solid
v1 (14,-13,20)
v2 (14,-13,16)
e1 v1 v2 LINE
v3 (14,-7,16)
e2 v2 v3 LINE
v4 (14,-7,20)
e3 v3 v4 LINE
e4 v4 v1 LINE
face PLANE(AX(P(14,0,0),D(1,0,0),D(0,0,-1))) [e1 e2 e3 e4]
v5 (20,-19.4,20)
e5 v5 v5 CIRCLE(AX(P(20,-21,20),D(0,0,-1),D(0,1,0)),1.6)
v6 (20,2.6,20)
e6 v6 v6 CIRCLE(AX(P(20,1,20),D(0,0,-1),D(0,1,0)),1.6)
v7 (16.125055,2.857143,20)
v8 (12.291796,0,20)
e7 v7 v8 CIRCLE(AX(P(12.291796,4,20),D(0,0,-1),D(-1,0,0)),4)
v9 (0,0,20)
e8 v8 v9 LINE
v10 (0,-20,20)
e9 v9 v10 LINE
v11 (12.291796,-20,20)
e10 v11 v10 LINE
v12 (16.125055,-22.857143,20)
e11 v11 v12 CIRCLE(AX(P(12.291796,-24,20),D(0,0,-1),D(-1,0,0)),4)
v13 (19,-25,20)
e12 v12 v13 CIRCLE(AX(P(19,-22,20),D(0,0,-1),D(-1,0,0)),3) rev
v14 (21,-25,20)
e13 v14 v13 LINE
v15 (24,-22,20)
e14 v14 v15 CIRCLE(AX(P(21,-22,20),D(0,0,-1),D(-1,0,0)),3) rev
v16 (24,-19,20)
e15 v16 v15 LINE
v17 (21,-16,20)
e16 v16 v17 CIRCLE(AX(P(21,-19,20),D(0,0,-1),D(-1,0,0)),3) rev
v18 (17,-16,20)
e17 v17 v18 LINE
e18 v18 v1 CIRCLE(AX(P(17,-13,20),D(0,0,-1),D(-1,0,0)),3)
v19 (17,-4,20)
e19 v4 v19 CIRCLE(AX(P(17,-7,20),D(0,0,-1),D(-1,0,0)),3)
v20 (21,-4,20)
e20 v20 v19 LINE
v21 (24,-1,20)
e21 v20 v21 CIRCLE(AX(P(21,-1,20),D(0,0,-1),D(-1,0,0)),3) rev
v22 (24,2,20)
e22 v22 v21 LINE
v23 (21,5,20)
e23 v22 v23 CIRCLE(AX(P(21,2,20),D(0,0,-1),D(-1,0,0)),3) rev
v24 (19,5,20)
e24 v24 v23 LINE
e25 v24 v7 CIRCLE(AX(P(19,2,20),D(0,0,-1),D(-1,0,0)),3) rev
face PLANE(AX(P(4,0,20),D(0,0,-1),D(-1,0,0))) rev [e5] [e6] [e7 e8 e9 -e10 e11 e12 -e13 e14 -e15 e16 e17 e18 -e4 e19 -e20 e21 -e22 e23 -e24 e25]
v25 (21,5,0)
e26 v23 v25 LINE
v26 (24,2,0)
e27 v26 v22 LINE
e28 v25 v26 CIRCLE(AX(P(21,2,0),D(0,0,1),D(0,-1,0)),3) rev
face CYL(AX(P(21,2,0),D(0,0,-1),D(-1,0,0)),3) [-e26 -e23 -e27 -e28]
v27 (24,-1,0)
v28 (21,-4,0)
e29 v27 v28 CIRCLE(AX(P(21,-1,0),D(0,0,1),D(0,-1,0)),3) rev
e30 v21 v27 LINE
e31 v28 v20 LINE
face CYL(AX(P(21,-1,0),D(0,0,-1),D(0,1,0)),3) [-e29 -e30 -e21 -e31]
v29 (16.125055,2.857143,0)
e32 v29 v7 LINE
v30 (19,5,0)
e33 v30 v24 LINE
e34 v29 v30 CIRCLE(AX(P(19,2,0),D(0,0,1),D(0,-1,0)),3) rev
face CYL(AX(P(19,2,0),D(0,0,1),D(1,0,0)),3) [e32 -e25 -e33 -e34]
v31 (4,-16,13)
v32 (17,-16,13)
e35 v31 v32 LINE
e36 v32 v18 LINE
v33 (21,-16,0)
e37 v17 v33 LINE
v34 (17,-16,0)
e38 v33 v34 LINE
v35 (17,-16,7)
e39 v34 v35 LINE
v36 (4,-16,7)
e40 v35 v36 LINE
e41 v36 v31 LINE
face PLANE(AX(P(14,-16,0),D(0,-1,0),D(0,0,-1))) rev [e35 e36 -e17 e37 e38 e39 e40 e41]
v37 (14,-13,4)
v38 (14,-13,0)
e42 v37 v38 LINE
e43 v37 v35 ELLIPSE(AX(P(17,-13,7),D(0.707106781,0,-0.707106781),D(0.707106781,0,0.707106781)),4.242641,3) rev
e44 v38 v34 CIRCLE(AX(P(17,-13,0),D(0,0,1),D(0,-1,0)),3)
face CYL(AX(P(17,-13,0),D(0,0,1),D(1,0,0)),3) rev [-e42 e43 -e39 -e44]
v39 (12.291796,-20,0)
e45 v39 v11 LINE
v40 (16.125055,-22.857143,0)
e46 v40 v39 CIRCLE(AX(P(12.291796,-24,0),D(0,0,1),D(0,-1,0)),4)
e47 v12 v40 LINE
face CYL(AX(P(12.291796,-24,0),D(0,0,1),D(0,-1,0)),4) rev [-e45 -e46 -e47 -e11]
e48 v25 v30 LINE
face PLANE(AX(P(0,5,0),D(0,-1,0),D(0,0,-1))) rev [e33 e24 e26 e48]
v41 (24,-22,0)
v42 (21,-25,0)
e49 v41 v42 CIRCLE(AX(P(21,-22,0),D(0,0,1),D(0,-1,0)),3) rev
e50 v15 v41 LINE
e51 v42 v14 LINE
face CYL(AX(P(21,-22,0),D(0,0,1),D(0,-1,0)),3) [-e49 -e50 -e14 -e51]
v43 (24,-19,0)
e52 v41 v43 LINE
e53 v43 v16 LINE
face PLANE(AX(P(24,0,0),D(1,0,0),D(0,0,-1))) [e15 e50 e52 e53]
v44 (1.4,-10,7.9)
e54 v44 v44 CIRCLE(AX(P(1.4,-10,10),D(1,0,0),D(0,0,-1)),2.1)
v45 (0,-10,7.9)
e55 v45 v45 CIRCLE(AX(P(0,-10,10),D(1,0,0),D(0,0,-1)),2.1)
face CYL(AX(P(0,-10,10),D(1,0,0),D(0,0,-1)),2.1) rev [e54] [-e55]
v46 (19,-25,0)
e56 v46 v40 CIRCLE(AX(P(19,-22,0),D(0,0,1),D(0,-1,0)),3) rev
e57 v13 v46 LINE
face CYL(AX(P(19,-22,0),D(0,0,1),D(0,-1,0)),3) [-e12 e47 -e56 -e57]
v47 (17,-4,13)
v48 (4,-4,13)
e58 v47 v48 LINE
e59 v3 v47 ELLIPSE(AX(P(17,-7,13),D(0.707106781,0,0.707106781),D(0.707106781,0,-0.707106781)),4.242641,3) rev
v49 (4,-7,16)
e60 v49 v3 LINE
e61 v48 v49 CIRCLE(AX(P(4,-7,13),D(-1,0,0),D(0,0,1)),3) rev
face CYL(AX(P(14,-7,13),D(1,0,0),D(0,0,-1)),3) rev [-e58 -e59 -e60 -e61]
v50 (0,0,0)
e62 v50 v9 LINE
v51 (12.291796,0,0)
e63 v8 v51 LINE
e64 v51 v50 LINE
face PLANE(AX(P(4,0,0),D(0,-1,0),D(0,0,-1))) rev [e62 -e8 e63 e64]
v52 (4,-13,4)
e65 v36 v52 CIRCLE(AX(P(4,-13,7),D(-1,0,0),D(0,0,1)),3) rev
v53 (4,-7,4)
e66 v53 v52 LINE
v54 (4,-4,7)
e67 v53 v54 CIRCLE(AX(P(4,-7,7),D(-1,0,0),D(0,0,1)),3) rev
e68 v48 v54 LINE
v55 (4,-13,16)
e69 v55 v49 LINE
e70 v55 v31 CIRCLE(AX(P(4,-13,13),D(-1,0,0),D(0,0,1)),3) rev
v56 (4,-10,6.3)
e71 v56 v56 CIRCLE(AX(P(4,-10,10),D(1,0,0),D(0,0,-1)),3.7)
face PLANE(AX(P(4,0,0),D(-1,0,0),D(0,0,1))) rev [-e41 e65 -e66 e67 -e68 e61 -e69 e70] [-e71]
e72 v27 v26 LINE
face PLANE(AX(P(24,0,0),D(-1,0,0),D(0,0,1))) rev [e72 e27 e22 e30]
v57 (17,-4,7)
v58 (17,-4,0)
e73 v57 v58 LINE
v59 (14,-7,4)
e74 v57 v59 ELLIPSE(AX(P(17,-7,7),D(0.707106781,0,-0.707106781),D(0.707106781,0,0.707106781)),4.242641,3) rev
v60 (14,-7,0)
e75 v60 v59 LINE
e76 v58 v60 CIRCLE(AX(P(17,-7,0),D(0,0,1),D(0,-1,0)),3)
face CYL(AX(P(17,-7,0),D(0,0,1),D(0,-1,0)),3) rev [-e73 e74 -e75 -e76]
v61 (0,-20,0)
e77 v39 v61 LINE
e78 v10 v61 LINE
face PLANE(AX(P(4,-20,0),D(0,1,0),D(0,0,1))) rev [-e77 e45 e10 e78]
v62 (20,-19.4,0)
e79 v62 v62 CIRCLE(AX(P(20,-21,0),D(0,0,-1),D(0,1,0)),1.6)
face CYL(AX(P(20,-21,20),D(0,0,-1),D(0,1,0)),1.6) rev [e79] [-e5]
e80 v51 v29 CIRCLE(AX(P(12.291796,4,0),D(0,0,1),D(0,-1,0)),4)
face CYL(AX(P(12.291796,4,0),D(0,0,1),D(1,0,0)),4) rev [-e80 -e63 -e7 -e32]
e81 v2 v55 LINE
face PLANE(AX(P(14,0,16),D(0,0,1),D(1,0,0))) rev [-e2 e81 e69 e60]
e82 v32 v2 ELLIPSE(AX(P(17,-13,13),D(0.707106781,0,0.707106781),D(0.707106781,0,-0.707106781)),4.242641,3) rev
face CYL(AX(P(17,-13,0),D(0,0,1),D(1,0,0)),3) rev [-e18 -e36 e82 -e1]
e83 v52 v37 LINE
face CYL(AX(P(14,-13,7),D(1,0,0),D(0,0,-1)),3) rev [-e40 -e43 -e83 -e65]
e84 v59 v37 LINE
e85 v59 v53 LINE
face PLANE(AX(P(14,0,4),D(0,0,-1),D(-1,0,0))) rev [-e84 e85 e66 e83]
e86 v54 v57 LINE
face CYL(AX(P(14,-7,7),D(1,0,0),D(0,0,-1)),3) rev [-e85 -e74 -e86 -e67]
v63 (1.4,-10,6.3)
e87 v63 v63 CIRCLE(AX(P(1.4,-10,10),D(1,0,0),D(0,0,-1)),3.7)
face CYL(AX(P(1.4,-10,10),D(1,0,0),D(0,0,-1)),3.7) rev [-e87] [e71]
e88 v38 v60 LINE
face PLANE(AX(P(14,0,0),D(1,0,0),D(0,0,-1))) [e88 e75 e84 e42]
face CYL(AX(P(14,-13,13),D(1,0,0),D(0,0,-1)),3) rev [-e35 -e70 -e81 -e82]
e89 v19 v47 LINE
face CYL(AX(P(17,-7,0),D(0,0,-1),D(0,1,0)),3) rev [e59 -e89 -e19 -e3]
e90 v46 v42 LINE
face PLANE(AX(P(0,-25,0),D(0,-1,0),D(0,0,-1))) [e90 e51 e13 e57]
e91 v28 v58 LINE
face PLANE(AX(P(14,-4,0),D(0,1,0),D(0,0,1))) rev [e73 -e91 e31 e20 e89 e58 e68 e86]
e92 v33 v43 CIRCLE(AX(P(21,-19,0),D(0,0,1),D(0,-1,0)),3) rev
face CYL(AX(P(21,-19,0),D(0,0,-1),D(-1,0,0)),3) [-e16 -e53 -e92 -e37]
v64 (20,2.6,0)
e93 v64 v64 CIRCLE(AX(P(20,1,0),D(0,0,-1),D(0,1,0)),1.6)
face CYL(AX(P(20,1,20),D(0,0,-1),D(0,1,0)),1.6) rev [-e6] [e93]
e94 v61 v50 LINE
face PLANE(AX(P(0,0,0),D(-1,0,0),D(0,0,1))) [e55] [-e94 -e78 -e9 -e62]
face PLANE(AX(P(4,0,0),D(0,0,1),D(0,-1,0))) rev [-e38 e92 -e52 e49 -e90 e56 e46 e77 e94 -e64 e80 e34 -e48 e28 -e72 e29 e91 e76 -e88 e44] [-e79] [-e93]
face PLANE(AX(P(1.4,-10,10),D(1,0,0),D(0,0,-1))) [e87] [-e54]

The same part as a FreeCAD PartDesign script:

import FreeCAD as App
import Part
import Sketcher
from FreeCAD import Vector


def edges_at(feature, points):
    """Names of the edges that pass closest to the given points."""
    edges = feature.Shape.Edges
    near = lambda p: min(range(len(edges)), key=lambda i: edges[i].distToShape(Part.Vertex(*p))[0])
    return sorted({f"Edge{near(p) + 1}" for p in points})

doc = App.newDocument("Part")
body = doc.addObject("PartDesign::Body", "Body")

sketch1 = body.newObject("Sketcher::SketchObject", "Sketch")
sketch1.AttachmentSupport = (doc.getObject("YZ_Plane"), [""])
sketch1.MapMode = "FlatFace"
sketch1.addGeometry(Part.LineSegment(Vector(0, 20, 0), Vector(-20, 20, 0)), False)
sketch1.addGeometry(Part.LineSegment(Vector(-20, 20, 0), Vector(-20, 0, 0)), False)
sketch1.addGeometry(Part.LineSegment(Vector(-20, 0, 0), Vector(0, 0, 0)), False)
sketch1.addGeometry(Part.LineSegment(Vector(0, 0, 0), Vector(0, 20, 0)), False)
sketch1.addConstraint(Sketcher.Constraint("Coincident", 0, 2, 1, 1))
sketch1.addConstraint(Sketcher.Constraint("Coincident", 1, 2, 2, 1))
sketch1.addConstraint(Sketcher.Constraint("Coincident", 2, 2, 3, 1))
sketch1.addConstraint(Sketcher.Constraint("Coincident", 3, 2, 0, 1))
sketch1.addConstraint(Sketcher.Constraint("Horizontal", 0))
sketch1.addConstraint(Sketcher.Constraint("Vertical", 1))
sketch1.addConstraint(Sketcher.Constraint("Horizontal", 2))
sketch1.addConstraint(Sketcher.Constraint("Vertical", 3))
sketch1.addConstraint(Sketcher.Constraint("Coincident", 2, 2, -1, 1))
sketch1.addConstraint(Sketcher.Constraint("Equal", 2, 1))
sketch1.addConstraint(Sketcher.Constraint("DistanceX", 0, 2, 0, 1, 20.0))
pad1 = body.newObject("PartDesign::Pad", "Pad")
pad1.Profile = sketch1
pad1.Length = 4

sketch2 = body.newObject("Sketcher::SketchObject", "Sketch001")
sketch2.AttachmentSupport = (doc.getObject("YZ_Plane"), [""])
sketch2.MapMode = "FlatFace"
sketch2.AttachmentOffset = App.Placement(Vector(0, 0, 4), App.Rotation())
sketch2.addGeometry(Part.Circle(Vector(-10, 10, 0), Vector(0, 0, 1), 3.7), False)
sketch2.addConstraint(Sketcher.Constraint("Diameter", 0, 7.4))
sketch2.addConstraint(Sketcher.Constraint("DistanceX", 0, 3, -1, 1, 10.0))
sketch2.addConstraint(Sketcher.Constraint("DistanceY", -1, 1, 0, 3, 10.0))
pocket1 = body.newObject("PartDesign::Pocket", "Pocket")
pocket1.Profile = sketch2
pocket1.Length = 2.6

sketch3 = body.newObject("Sketcher::SketchObject", "Sketch002")
sketch3.AttachmentSupport = (doc.getObject("YZ_Plane"), [""])
sketch3.MapMode = "FlatFace"
sketch3.AttachmentOffset = App.Placement(Vector(0, 0, 1.4), App.Rotation())
sketch3.addGeometry(Part.Circle(Vector(-10, 10, 0), Vector(0, 0, 1), 2.1), False)
sketch3.addConstraint(Sketcher.Constraint("Diameter", 0, 4.2))
sketch3.addConstraint(Sketcher.Constraint("DistanceX", 0, 3, -1, 1, 10.0))
sketch3.addConstraint(Sketcher.Constraint("DistanceY", -1, 1, 0, 3, 10.0))
pocket2 = body.newObject("PartDesign::Pocket", "Pocket001")
pocket2.Profile = sketch3
pocket2.Type = "ThroughAll"

sketch4 = body.newObject("Sketcher::SketchObject", "Sketch003")
sketch4.AttachmentSupport = (doc.getObject("YZ_Plane"), [""])
sketch4.MapMode = "FlatFace"
sketch4.AttachmentOffset = App.Placement(Vector(0, 0, 4), App.Rotation())
sketch4.addGeometry(Part.LineSegment(Vector(0, 20, 0), Vector(-20, 20, 0)), False)
sketch4.addGeometry(Part.LineSegment(Vector(-20, 20, 0), Vector(-20, 0, 0)), False)
sketch4.addGeometry(Part.LineSegment(Vector(-20, 0, 0), Vector(0, 0, 0)), False)
sketch4.addGeometry(Part.LineSegment(Vector(0, 0, 0), Vector(0, 20, 0)), False)
sketch4.addGeometry(Part.LineSegment(Vector(-4, 4, 0), Vector(-16, 4, 0)), False)
sketch4.addGeometry(Part.LineSegment(Vector(-16, 4, 0), Vector(-16, 16, 0)), False)
sketch4.addGeometry(Part.LineSegment(Vector(-16, 16, 0), Vector(-4, 16, 0)), False)
sketch4.addGeometry(Part.LineSegment(Vector(-4, 16, 0), Vector(-4, 4, 0)), False)
sketch4.addConstraint(Sketcher.Constraint("Coincident", 0, 2, 1, 1))
sketch4.addConstraint(Sketcher.Constraint("Coincident", 1, 2, 2, 1))
sketch4.addConstraint(Sketcher.Constraint("Coincident", 2, 2, 3, 1))
sketch4.addConstraint(Sketcher.Constraint("Coincident", 3, 2, 0, 1))
sketch4.addConstraint(Sketcher.Constraint("Coincident", 4, 2, 5, 1))
sketch4.addConstraint(Sketcher.Constraint("Coincident", 5, 2, 6, 1))
sketch4.addConstraint(Sketcher.Constraint("Coincident", 6, 2, 7, 1))
sketch4.addConstraint(Sketcher.Constraint("Coincident", 7, 2, 4, 1))
sketch4.addConstraint(Sketcher.Constraint("Horizontal", 0))
sketch4.addConstraint(Sketcher.Constraint("Vertical", 1))
sketch4.addConstraint(Sketcher.Constraint("Horizontal", 2))
sketch4.addConstraint(Sketcher.Constraint("Vertical", 3))
sketch4.addConstraint(Sketcher.Constraint("Horizontal", 4))
sketch4.addConstraint(Sketcher.Constraint("Vertical", 5))
sketch4.addConstraint(Sketcher.Constraint("Horizontal", 6))
sketch4.addConstraint(Sketcher.Constraint("Vertical", 7))
sketch4.addConstraint(Sketcher.Constraint("Coincident", 2, 2, -1, 1))
sketch4.addConstraint(Sketcher.Constraint("Equal", 2, 1))
sketch4.addConstraint(Sketcher.Constraint("Equal", 6, 5))
sketch4.addConstraint(Sketcher.Constraint("DistanceX", 0, 2, 0, 1, 20.0))
sketch4.addConstraint(Sketcher.Constraint("DistanceX", 4, 2, 4, 1, 12.0))
sketch4.addConstraint(Sketcher.Constraint("DistanceX", 4, 2, -1, 1, 16.0))
sketch4.addConstraint(Sketcher.Constraint("DistanceY", -1, 1, 4, 2, 4.0))
pad2 = body.newObject("PartDesign::Pad", "Pad001")
pad2.Profile = sketch4
pad2.Length = 10

sketch5 = body.newObject("Sketcher::SketchObject", "Sketch004")
sketch5.AttachmentSupport = (doc.getObject("YZ_Plane"), [""])
sketch5.MapMode = "FlatFace"
sketch5.AttachmentOffset = App.Placement(Vector(0, 0, 14), App.Rotation())
sketch5.addGeometry(Part.LineSegment(Vector(-16, 20, 0), Vector(-20, 20, 0)), False)
sketch5.addGeometry(Part.LineSegment(Vector(-20, 20, 0), Vector(-20, 0, 0)), False)
sketch5.addGeometry(Part.LineSegment(Vector(-20, 0, 0), Vector(-16, 0, 0)), False)
sketch5.addGeometry(Part.LineSegment(Vector(-16, 0, 0), Vector(-16, 20, 0)), False)
sketch5.addGeometry(Part.LineSegment(Vector(0, 20, 0), Vector(-4, 20, 0)), False)
sketch5.addGeometry(Part.LineSegment(Vector(-4, 20, 0), Vector(-4, 0, 0)), False)
sketch5.addGeometry(Part.LineSegment(Vector(-4, 0, 0), Vector(0, 0, 0)), False)
sketch5.addGeometry(Part.LineSegment(Vector(0, 0, 0), Vector(0, 20, 0)), False)
sketch5.addConstraint(Sketcher.Constraint("Coincident", 0, 2, 1, 1))
sketch5.addConstraint(Sketcher.Constraint("Coincident", 1, 2, 2, 1))
sketch5.addConstraint(Sketcher.Constraint("Coincident", 2, 2, 3, 1))
sketch5.addConstraint(Sketcher.Constraint("Coincident", 3, 2, 0, 1))
sketch5.addConstraint(Sketcher.Constraint("Coincident", 4, 2, 5, 1))
sketch5.addConstraint(Sketcher.Constraint("Coincident", 5, 2, 6, 1))
sketch5.addConstraint(Sketcher.Constraint("Coincident", 6, 2, 7, 1))
sketch5.addConstraint(Sketcher.Constraint("Coincident", 7, 2, 4, 1))
sketch5.addConstraint(Sketcher.Constraint("Horizontal", 0))
sketch5.addConstraint(Sketcher.Constraint("Vertical", 1))
sketch5.addConstraint(Sketcher.Constraint("Horizontal", 2))
sketch5.addConstraint(Sketcher.Constraint("Vertical", 3))
sketch5.addConstraint(Sketcher.Constraint("Horizontal", 4))
sketch5.addConstraint(Sketcher.Constraint("Vertical", 5))
sketch5.addConstraint(Sketcher.Constraint("Horizontal", 6))
sketch5.addConstraint(Sketcher.Constraint("Vertical", 7))
sketch5.addConstraint(Sketcher.Constraint("Coincident", 6, 2, -1, 1))
sketch5.addConstraint(Sketcher.Constraint("PointOnObject", 1, 2, -1))
sketch5.addConstraint(Sketcher.Constraint("Horizontal", 3, 2, 4, 2))
sketch5.addConstraint(Sketcher.Constraint("Equal", 2, 4))
sketch5.addConstraint(Sketcher.Constraint("DistanceX", 0, 2, 0, 1, 4.0))
sketch5.addConstraint(Sketcher.Constraint("DistanceY", 1, 2, 1, 1, 20.0))
sketch5.addConstraint(Sketcher.Constraint("DistanceX", 0, 2, -1, 1, 20.0))
pad3 = body.newObject("PartDesign::Pad", "Pad002")
pad3.Profile = sketch5
pad3.Length = 10

sketch6 = body.newObject("Sketcher::SketchObject", "Sketch005")
sketch6.AttachmentSupport = (doc.getObject("XZ_Plane"), [""])
sketch6.MapMode = "FlatFace"
sketch6.AttachmentOffset = App.Placement(Vector(0, 0, 20), App.Rotation())
sketch6.addGeometry(Part.LineSegment(Vector(24, 0, 0), Vector(24, 20, 0)), False)
sketch6.addGeometry(Part.LineSegment(Vector(24, 20, 0), Vector(16, 20, 0)), False)
sketch6.addGeometry(Part.LineSegment(Vector(16, 20, 0), Vector(16, 0, 0)), False)
sketch6.addGeometry(Part.LineSegment(Vector(16, 0, 0), Vector(24, 0, 0)), False)
sketch6.addConstraint(Sketcher.Constraint("Coincident", 0, 2, 1, 1))
sketch6.addConstraint(Sketcher.Constraint("Coincident", 1, 2, 2, 1))
sketch6.addConstraint(Sketcher.Constraint("Coincident", 2, 2, 3, 1))
sketch6.addConstraint(Sketcher.Constraint("Coincident", 3, 2, 0, 1))
sketch6.addConstraint(Sketcher.Constraint("Vertical", 0))
sketch6.addConstraint(Sketcher.Constraint("Horizontal", 1))
sketch6.addConstraint(Sketcher.Constraint("Vertical", 2))
sketch6.addConstraint(Sketcher.Constraint("Horizontal", 3))
sketch6.addConstraint(Sketcher.Constraint("PointOnObject", 2, 2, -1))
sketch6.addConstraint(Sketcher.Constraint("DistanceX", 1, 2, 1, 1, 8.0))
sketch6.addConstraint(Sketcher.Constraint("DistanceY", 0, 1, 0, 2, 20.0))
sketch6.addConstraint(Sketcher.Constraint("DistanceX", -1, 1, 0, 2, 24.0))
pad4 = body.newObject("PartDesign::Pad", "Pad003")
pad4.Profile = sketch6
pad4.Length = 5

sketch7 = body.newObject("Sketcher::SketchObject", "Sketch006")
sketch7.AttachmentSupport = (doc.getObject("XZ_Plane"), [""])
sketch7.MapMode = "FlatFace"
sketch7.addGeometry(Part.LineSegment(Vector(16, 0, 0), Vector(16, 20, 0)), False)
sketch7.addGeometry(Part.LineSegment(Vector(16, 20, 0), Vector(24, 20, 0)), False)
sketch7.addGeometry(Part.LineSegment(Vector(24, 20, 0), Vector(24, 0, 0)), False)
sketch7.addGeometry(Part.LineSegment(Vector(24, 0, 0), Vector(16, 0, 0)), False)
sketch7.addConstraint(Sketcher.Constraint("Coincident", 0, 2, 1, 1))
sketch7.addConstraint(Sketcher.Constraint("Coincident", 1, 2, 2, 1))
sketch7.addConstraint(Sketcher.Constraint("Coincident", 2, 2, 3, 1))
sketch7.addConstraint(Sketcher.Constraint("Coincident", 3, 2, 0, 1))
sketch7.addConstraint(Sketcher.Constraint("Vertical", 0))
sketch7.addConstraint(Sketcher.Constraint("Horizontal", 1))
sketch7.addConstraint(Sketcher.Constraint("Vertical", 2))
sketch7.addConstraint(Sketcher.Constraint("Horizontal", 3))
sketch7.addConstraint(Sketcher.Constraint("PointOnObject", 2, 2, -1))
sketch7.addConstraint(Sketcher.Constraint("DistanceX", 1, 1, 1, 2, 8.0))
sketch7.addConstraint(Sketcher.Constraint("DistanceY", 0, 1, 0, 2, 20.0))
sketch7.addConstraint(Sketcher.Constraint("DistanceX", -1, 1, 0, 2, 16.0))
pad5 = body.newObject("PartDesign::Pad", "Pad004")
pad5.Profile = sketch7
pad5.Length = 5
pad5.Reversed = True

sketch8 = body.newObject("Sketcher::SketchObject", "Sketch007")
sketch8.AttachmentSupport = (doc.getObject("XY_Plane"), [""])
sketch8.MapMode = "FlatFace"
sketch8.addGeometry(Part.Circle(Vector(20, 1, 0), Vector(0, 0, 1), 1.6), False)
sketch8.addGeometry(Part.Circle(Vector(20, -21, 0), Vector(0, 0, 1), 1.6), False)
sketch8.addConstraint(Sketcher.Constraint("Equal", 0, 1))
sketch8.addConstraint(Sketcher.Constraint("Vertical", 0, 3, 1, 3))
sketch8.addConstraint(Sketcher.Constraint("Diameter", 0, 3.2))
sketch8.addConstraint(Sketcher.Constraint("DistanceX", -1, 1, 0, 3, 20.0))
sketch8.addConstraint(Sketcher.Constraint("DistanceY", -1, 1, 0, 3, 1.0))
sketch8.addConstraint(Sketcher.Constraint("DistanceY", 1, 3, -1, 1, 21.0))
pocket3 = body.newObject("PartDesign::Pocket", "Pocket002")
pocket3.Profile = sketch8
pocket3.Type = "ThroughAll"
pocket3.Reversed = True
doc.recompute()

fillet = body.newObject("PartDesign::Fillet", "Fillet")
fillet.Base = (pocket3, edges_at(pocket3, [
    (24, -16, 10),
    (24, -4, 10),
    (24, -25, 10),
    (16, -25, 10),
    (24, 5, 10),
    (16, 5, 10),
]))
fillet.Radius = 3
doc.recompute()

fillet2 = body.newObject("PartDesign::Fillet", "Fillet001")
fillet2.Base = (fillet, edges_at(fillet, [
    (9, -4, 16),
    (9, -4, 4),
    (9, -16, 4),
    (9, -16, 16),
    (14, -16, 18),
    (14, -16, 2),
    (14, -4, 2),
    (14, -4, 18),
]))
fillet2.Radius = 3
doc.recompute()

fillet3 = body.newObject("PartDesign::Fillet", "Fillet002")
fillet3.Base = (fillet2, edges_at(fillet2, [(16, -20, 10), (16, 0, 10)]))
fillet3.Radius = 4

doc.recompute()
